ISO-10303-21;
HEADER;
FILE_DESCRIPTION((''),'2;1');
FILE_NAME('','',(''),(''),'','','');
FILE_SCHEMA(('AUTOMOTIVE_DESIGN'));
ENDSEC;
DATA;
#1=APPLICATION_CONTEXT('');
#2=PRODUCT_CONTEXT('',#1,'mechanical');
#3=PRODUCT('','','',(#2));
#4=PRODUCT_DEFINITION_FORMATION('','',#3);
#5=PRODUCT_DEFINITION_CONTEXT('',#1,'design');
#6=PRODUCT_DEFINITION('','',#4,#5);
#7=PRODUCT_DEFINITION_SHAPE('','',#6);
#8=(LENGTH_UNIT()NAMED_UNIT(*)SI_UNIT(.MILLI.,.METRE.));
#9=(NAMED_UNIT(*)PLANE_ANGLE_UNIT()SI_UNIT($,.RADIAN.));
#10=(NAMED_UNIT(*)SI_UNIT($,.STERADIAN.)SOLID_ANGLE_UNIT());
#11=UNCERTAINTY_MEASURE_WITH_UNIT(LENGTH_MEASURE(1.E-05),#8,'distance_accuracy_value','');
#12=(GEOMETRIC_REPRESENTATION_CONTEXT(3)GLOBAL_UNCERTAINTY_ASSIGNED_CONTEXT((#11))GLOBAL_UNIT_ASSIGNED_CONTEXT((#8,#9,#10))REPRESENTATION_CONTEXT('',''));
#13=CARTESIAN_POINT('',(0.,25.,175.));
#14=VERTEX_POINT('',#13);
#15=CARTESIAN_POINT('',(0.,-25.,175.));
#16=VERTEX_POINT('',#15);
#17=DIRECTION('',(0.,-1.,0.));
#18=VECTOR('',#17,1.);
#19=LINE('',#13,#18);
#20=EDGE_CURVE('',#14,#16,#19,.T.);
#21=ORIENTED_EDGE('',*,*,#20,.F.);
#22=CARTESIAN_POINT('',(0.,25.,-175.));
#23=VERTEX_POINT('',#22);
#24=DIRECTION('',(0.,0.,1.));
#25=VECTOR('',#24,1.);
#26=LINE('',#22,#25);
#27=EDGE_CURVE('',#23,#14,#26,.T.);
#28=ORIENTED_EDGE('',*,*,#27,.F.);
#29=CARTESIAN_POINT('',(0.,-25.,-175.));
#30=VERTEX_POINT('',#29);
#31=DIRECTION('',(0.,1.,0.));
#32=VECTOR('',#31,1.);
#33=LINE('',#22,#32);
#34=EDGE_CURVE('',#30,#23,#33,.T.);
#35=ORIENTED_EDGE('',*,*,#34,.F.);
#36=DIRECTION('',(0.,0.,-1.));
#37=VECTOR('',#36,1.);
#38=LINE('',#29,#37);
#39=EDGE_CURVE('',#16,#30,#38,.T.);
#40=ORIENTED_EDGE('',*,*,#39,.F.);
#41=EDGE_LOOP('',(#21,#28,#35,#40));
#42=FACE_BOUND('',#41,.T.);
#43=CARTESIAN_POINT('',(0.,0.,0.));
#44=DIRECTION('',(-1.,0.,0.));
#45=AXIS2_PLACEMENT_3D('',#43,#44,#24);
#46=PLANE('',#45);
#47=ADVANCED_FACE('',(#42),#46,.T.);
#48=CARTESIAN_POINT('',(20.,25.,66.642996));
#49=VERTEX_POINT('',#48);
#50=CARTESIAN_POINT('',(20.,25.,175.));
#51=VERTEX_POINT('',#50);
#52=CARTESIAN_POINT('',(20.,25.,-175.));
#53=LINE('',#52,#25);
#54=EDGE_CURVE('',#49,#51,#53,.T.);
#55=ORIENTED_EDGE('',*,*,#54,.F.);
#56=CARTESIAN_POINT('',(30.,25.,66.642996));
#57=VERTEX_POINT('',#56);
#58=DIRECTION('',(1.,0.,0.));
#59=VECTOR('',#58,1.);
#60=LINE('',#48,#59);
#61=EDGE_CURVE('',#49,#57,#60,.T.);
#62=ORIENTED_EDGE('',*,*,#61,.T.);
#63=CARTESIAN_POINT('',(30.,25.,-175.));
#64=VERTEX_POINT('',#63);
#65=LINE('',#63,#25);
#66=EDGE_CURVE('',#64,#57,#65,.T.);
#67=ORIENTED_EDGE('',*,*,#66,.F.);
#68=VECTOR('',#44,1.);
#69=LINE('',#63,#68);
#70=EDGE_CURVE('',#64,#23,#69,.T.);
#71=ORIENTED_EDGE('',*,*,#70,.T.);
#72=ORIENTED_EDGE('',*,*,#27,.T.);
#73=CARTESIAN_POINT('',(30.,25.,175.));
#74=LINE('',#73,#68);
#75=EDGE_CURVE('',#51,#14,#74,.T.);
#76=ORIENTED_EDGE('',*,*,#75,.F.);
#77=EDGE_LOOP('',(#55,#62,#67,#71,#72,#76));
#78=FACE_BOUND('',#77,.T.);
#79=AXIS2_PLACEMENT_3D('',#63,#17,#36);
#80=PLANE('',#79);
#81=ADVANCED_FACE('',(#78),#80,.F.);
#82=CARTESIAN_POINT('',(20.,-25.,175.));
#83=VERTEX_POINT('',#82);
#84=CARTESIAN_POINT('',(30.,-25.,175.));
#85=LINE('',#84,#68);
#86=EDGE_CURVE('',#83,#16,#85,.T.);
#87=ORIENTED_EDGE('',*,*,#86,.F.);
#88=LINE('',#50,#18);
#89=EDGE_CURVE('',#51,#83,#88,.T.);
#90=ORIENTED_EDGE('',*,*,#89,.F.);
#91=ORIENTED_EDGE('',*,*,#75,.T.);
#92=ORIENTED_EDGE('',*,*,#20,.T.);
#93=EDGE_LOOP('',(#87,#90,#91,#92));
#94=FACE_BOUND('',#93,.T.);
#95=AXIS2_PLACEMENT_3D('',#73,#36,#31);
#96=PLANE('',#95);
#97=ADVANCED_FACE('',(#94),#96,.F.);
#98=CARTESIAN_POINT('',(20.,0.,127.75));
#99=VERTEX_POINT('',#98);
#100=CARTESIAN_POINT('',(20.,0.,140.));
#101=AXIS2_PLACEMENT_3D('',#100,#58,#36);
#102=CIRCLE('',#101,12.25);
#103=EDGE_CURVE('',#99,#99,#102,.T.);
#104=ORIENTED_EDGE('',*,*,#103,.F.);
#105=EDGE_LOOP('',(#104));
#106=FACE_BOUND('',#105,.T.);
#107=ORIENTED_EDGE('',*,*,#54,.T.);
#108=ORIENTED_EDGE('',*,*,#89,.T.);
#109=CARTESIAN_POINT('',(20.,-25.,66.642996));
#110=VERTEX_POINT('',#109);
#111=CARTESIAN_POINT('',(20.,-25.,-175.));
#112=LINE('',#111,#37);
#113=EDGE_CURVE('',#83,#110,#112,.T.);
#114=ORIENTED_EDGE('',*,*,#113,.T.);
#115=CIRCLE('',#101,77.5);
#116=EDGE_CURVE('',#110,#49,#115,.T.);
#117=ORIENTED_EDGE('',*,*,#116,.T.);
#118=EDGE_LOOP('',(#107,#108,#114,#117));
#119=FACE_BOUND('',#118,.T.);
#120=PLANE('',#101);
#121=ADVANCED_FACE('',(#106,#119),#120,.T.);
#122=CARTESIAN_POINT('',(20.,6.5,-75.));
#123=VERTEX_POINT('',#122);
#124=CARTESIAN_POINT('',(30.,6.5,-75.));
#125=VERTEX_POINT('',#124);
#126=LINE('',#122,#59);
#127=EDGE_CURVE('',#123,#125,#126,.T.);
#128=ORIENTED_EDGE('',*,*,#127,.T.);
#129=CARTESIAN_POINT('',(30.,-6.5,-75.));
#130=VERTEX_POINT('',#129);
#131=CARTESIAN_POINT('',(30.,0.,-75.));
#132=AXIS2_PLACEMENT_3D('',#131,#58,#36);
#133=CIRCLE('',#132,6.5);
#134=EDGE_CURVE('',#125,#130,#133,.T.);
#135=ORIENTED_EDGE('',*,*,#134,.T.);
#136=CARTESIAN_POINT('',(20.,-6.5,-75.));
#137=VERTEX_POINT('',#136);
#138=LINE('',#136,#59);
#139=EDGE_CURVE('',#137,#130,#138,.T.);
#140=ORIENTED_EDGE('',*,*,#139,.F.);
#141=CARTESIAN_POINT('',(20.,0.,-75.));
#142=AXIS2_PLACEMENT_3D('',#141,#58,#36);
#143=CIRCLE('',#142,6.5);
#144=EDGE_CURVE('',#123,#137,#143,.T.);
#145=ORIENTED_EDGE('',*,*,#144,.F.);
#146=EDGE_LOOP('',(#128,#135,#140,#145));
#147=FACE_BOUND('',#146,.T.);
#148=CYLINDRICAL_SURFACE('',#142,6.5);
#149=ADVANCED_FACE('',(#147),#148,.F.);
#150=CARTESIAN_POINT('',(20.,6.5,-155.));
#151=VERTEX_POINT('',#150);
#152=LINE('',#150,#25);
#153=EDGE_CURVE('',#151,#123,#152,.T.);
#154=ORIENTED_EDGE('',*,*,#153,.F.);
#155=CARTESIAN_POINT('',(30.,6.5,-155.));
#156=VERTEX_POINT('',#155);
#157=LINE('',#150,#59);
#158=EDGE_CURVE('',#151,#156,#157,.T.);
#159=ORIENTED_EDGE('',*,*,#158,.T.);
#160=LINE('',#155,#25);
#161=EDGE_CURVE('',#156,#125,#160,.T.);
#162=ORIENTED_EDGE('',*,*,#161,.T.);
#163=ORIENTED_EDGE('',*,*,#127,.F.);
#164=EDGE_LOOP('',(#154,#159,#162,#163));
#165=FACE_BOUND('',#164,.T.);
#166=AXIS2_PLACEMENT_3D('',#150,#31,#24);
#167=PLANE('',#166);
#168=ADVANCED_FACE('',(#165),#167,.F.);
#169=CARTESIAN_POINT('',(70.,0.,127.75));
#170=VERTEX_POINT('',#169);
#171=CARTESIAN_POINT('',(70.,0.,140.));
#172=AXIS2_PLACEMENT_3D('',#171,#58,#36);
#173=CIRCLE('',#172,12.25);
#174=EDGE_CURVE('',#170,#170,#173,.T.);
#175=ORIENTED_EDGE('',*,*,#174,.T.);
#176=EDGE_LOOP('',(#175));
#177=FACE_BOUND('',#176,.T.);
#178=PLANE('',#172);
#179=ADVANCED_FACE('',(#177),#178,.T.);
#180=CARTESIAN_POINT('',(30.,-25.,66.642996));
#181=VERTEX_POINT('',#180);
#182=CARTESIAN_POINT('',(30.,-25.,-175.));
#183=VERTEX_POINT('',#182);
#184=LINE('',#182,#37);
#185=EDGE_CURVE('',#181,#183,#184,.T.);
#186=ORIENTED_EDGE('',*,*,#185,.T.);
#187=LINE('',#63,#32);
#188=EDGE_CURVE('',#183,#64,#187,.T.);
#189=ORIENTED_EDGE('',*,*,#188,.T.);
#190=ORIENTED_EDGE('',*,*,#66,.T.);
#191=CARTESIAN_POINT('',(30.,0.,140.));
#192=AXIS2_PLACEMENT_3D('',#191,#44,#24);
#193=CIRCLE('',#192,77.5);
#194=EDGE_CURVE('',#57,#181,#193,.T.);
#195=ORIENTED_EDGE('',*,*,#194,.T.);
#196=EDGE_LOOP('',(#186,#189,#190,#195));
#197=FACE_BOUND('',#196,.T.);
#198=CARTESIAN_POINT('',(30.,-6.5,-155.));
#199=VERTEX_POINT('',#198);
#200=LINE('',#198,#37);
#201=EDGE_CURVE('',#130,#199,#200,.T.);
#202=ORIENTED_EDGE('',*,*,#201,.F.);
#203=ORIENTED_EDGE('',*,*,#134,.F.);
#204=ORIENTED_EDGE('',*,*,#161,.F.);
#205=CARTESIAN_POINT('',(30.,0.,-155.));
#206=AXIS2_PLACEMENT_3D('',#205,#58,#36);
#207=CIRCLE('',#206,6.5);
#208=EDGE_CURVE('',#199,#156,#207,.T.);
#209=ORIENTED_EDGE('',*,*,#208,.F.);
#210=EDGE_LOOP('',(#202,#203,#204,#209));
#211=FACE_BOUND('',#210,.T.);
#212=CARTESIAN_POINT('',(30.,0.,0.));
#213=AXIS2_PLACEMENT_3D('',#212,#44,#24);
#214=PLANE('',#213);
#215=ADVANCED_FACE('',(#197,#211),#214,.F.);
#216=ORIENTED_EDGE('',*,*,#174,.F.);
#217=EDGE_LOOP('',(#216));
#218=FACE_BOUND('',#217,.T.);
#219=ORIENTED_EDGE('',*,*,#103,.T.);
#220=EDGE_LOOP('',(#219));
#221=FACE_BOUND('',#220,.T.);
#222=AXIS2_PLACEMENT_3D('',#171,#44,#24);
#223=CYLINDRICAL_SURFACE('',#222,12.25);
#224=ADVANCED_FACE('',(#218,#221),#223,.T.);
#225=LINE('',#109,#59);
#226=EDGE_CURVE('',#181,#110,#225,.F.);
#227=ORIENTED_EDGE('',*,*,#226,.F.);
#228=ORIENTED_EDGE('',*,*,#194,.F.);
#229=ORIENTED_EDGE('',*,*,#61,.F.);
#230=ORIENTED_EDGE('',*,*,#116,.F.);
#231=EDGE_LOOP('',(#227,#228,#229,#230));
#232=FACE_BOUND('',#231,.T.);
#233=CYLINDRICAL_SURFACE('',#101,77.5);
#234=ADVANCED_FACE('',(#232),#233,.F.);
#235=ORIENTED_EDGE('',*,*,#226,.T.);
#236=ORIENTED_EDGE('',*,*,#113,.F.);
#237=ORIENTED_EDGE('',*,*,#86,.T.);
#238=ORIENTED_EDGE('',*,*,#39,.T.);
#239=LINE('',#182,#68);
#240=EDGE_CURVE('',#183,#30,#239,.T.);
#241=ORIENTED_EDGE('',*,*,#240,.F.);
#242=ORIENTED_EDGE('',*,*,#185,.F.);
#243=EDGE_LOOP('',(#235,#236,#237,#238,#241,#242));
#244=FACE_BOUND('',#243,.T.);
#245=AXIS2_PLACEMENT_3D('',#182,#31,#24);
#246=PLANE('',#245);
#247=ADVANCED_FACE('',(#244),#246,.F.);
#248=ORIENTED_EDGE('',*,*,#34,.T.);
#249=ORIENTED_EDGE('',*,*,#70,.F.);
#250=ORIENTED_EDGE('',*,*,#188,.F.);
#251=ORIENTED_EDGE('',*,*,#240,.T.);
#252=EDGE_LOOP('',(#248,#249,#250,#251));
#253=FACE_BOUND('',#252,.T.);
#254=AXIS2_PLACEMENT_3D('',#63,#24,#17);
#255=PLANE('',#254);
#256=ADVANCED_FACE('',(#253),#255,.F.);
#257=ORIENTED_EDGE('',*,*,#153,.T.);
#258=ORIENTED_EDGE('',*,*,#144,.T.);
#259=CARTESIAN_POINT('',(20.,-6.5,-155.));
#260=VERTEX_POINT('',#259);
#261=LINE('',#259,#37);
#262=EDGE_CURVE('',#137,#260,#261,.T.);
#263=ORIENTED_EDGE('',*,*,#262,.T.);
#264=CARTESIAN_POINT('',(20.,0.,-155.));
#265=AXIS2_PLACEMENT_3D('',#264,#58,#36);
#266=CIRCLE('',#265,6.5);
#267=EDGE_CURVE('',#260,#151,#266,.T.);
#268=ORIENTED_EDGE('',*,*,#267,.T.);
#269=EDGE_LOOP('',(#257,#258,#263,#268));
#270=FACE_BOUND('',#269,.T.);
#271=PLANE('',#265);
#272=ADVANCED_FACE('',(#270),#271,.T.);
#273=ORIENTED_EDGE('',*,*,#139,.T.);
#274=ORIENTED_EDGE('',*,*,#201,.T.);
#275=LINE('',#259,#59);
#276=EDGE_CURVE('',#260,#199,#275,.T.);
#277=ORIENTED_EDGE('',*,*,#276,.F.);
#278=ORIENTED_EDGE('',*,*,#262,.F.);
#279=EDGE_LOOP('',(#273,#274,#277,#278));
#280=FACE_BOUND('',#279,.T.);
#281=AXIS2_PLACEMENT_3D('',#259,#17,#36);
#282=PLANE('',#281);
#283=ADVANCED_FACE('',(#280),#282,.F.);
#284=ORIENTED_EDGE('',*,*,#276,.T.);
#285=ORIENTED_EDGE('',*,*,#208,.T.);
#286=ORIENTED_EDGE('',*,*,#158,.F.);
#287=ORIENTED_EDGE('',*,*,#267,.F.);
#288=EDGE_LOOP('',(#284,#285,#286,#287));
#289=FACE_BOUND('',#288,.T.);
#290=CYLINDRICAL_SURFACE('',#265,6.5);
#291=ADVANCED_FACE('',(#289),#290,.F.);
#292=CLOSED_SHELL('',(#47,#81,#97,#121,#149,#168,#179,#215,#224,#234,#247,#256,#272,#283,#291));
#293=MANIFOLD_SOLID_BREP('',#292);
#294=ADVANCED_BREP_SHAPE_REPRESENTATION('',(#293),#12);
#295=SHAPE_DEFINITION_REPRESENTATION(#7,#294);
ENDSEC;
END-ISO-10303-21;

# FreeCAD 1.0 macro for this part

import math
import FreeCAD as App
import Part
import Sketcher

V = App.Vector
Q = App.Units.Quantity


def add_polygon(sketch, points):
    """Adds a closed chain of lines whose ends are joined by coincident constraints."""
    first, n = sketch.GeometryCount, len(points)
    for a, b in zip(points, points[1:] + points[:1]):
        sketch.addGeometry(Part.LineSegment(App.Vector(*a, 0), App.Vector(*b, 0)), False)
    for i in range(n):
        sketch.addConstraint(Sketcher.Constraint("Coincident", first + i, 2, first + (i + 1) % n, 1))

doc = App.newDocument("Part")
params = doc.addObject("Spreadsheet::Sheet", "Params")
for row, (alias, value) in enumerate([
    ("sketch1_width", "50 mm"),
    ("sketch1_height", "350 mm"),
    ("pad1_length", "30 mm"),
    ("sketch2_radius", "6.5 mm"),
    ("sketch2_height", "80 mm"),
    ("pocket1_length", "10 mm"),
    ("sketch3_diameter", "155 mm"),
    ("pocket2_length", "10 mm"),
    ("sketch4_diameter", "24.5 mm"),
    ("pad2_length", "50 mm"),
], start=1):
    params.set(f"A{row}", alias)
    params.set(f"B{row}", "=" + value)
    params.setAlias(f"B{row}", alias)

body = doc.addObject("PartDesign::Body", "Body")

# Sketch on YZ plane
sketch1 = body.newObject("Sketcher::SketchObject", "Sketch")
sketch1.AttachmentSupport = (doc.getObject("YZ_Plane"), [""])
sketch1.MapMode = "FlatFace"
add_polygon(sketch1, [(25, 175), (-25, 175), (-25, -175), (25, -175)])  # lines 0-3
sketch1.addConstraint(Sketcher.Constraint("Horizontal", 0))
sketch1.addConstraint(Sketcher.Constraint("Vertical", 1))
sketch1.addConstraint(Sketcher.Constraint("Horizontal", 2))
sketch1.addConstraint(Sketcher.Constraint("Vertical", 3))
sketch1.addConstraint(Sketcher.Constraint("Symmetric", 0, 2, 2, 2, -1, 1))
sketch1.addConstraint(Sketcher.Constraint("DistanceX", 0, 2, 0, 1, Q("50 mm")))
sketch1.addConstraint(Sketcher.Constraint("DistanceY", 1, 2, 1, 1, Q("350 mm")))
sketch1.setExpression("Constraints[9]", "Params.sketch1_width")
sketch1.setExpression("Constraints[10]", "Params.sketch1_height")
pad1 = body.newObject("PartDesign::Pad", "Pad")
pad1.Profile = sketch1
pad1.setExpression("Length", "Params.pad1_length")

# Sketch on YZ plane
sketch2 = body.newObject("Sketcher::SketchObject", "Sketch001")
sketch2.AttachmentSupport = (doc.getObject("YZ_Plane"), [""])
sketch2.MapMode = "FlatFace"
sketch2.AttachmentOffset = App.Placement(V(0, 0, 30), App.Rotation())
sketch2.addGeometry(Part.LineSegment(V(-6.5, -75, 0), V(-6.5, -155, 0)), False)
sketch2.addGeometry(Part.ArcOfCircle(Part.Circle(V(0, -155, 0), V(0, 0, 1), 6.5), math.radians(180), math.radians(360)), False)
sketch2.addGeometry(Part.LineSegment(V(6.5, -155, 0), V(6.5, -75, 0)), False)
sketch2.addGeometry(Part.ArcOfCircle(Part.Circle(V(0, -75, 0), V(0, 0, 1), 6.5), math.radians(0), math.radians(180)), False)
sketch2.addConstraint(Sketcher.Constraint("Tangent", 0, 2, 1, 1))
sketch2.addConstraint(Sketcher.Constraint("Tangent", 1, 2, 2, 1))
sketch2.addConstraint(Sketcher.Constraint("Tangent", 2, 2, 3, 1))
sketch2.addConstraint(Sketcher.Constraint("Tangent", 3, 2, 0, 1))
sketch2.addConstraint(Sketcher.Constraint("Vertical", 0))
sketch2.addConstraint(Sketcher.Constraint("Vertical", 2))
sketch2.addConstraint(Sketcher.Constraint("PointOnObject", 1, 3, -2))
sketch2.addConstraint(Sketcher.Constraint("Radius", 1, Q("6.5 mm")))
sketch2.addConstraint(Sketcher.Constraint("DistanceY", 0, 2, 0, 1, Q("80 mm")))
sketch2.addConstraint(Sketcher.Constraint("DistanceY", 1, 3, -1, 1, Q("155 mm")))
sketch2.setExpression("Constraints[7]", "Params.sketch2_radius")
sketch2.setExpression("Constraints[8]", "Params.sketch2_height")
pocket1 = body.newObject("PartDesign::Pocket", "Pocket")
pocket1.Profile = sketch2
pocket1.setExpression("Length", "Params.pocket1_length")

# Sketch on YZ plane
sketch3 = body.newObject("Sketcher::SketchObject", "Sketch002")
sketch3.AttachmentSupport = (doc.getObject("YZ_Plane"), [""])
sketch3.MapMode = "FlatFace"
sketch3.AttachmentOffset = App.Placement(V(0, 0, 30), App.Rotation())
sketch3.addGeometry(Part.Circle(V(0, 140, 0), V(0, 0, 1), 77.5), False)
sketch3.addConstraint(Sketcher.Constraint("PointOnObject", 0, 3, -2))
sketch3.addConstraint(Sketcher.Constraint("Diameter", 0, Q("155 mm")))
sketch3.addConstraint(Sketcher.Constraint("DistanceY", -1, 1, 0, 3, Q("140 mm")))
sketch3.setExpression("Constraints[1]", "Params.sketch3_diameter")
pocket2 = body.newObject("PartDesign::Pocket", "Pocket001")
pocket2.Profile = sketch3
pocket2.setExpression("Length", "Params.pocket2_length")

# Sketch on YZ plane
sketch4 = body.newObject("Sketcher::SketchObject", "Sketch003")
sketch4.AttachmentSupport = (doc.getObject("YZ_Plane"), [""])
sketch4.MapMode = "FlatFace"
sketch4.AttachmentOffset = App.Placement(V(0, 0, 20), App.Rotation())
sketch4.addGeometry(Part.Circle(V(0, 140, 0), V(0, 0, 1), 12.25), False)
sketch4.addConstraint(Sketcher.Constraint("PointOnObject", 0, 3, -2))
sketch4.addConstraint(Sketcher.Constraint("Diameter", 0, Q("24.5 mm")))
sketch4.addConstraint(Sketcher.Constraint("DistanceY", -1, 1, 0, 3, Q("140 mm")))
sketch4.setExpression("Constraints[1]", "Params.sketch4_diameter")
pad2 = body.newObject("PartDesign::Pad", "Pad001")
pad2.Profile = sketch4
pad2.setExpression("Length", "Params.pad2_length")

doc.recompute()
